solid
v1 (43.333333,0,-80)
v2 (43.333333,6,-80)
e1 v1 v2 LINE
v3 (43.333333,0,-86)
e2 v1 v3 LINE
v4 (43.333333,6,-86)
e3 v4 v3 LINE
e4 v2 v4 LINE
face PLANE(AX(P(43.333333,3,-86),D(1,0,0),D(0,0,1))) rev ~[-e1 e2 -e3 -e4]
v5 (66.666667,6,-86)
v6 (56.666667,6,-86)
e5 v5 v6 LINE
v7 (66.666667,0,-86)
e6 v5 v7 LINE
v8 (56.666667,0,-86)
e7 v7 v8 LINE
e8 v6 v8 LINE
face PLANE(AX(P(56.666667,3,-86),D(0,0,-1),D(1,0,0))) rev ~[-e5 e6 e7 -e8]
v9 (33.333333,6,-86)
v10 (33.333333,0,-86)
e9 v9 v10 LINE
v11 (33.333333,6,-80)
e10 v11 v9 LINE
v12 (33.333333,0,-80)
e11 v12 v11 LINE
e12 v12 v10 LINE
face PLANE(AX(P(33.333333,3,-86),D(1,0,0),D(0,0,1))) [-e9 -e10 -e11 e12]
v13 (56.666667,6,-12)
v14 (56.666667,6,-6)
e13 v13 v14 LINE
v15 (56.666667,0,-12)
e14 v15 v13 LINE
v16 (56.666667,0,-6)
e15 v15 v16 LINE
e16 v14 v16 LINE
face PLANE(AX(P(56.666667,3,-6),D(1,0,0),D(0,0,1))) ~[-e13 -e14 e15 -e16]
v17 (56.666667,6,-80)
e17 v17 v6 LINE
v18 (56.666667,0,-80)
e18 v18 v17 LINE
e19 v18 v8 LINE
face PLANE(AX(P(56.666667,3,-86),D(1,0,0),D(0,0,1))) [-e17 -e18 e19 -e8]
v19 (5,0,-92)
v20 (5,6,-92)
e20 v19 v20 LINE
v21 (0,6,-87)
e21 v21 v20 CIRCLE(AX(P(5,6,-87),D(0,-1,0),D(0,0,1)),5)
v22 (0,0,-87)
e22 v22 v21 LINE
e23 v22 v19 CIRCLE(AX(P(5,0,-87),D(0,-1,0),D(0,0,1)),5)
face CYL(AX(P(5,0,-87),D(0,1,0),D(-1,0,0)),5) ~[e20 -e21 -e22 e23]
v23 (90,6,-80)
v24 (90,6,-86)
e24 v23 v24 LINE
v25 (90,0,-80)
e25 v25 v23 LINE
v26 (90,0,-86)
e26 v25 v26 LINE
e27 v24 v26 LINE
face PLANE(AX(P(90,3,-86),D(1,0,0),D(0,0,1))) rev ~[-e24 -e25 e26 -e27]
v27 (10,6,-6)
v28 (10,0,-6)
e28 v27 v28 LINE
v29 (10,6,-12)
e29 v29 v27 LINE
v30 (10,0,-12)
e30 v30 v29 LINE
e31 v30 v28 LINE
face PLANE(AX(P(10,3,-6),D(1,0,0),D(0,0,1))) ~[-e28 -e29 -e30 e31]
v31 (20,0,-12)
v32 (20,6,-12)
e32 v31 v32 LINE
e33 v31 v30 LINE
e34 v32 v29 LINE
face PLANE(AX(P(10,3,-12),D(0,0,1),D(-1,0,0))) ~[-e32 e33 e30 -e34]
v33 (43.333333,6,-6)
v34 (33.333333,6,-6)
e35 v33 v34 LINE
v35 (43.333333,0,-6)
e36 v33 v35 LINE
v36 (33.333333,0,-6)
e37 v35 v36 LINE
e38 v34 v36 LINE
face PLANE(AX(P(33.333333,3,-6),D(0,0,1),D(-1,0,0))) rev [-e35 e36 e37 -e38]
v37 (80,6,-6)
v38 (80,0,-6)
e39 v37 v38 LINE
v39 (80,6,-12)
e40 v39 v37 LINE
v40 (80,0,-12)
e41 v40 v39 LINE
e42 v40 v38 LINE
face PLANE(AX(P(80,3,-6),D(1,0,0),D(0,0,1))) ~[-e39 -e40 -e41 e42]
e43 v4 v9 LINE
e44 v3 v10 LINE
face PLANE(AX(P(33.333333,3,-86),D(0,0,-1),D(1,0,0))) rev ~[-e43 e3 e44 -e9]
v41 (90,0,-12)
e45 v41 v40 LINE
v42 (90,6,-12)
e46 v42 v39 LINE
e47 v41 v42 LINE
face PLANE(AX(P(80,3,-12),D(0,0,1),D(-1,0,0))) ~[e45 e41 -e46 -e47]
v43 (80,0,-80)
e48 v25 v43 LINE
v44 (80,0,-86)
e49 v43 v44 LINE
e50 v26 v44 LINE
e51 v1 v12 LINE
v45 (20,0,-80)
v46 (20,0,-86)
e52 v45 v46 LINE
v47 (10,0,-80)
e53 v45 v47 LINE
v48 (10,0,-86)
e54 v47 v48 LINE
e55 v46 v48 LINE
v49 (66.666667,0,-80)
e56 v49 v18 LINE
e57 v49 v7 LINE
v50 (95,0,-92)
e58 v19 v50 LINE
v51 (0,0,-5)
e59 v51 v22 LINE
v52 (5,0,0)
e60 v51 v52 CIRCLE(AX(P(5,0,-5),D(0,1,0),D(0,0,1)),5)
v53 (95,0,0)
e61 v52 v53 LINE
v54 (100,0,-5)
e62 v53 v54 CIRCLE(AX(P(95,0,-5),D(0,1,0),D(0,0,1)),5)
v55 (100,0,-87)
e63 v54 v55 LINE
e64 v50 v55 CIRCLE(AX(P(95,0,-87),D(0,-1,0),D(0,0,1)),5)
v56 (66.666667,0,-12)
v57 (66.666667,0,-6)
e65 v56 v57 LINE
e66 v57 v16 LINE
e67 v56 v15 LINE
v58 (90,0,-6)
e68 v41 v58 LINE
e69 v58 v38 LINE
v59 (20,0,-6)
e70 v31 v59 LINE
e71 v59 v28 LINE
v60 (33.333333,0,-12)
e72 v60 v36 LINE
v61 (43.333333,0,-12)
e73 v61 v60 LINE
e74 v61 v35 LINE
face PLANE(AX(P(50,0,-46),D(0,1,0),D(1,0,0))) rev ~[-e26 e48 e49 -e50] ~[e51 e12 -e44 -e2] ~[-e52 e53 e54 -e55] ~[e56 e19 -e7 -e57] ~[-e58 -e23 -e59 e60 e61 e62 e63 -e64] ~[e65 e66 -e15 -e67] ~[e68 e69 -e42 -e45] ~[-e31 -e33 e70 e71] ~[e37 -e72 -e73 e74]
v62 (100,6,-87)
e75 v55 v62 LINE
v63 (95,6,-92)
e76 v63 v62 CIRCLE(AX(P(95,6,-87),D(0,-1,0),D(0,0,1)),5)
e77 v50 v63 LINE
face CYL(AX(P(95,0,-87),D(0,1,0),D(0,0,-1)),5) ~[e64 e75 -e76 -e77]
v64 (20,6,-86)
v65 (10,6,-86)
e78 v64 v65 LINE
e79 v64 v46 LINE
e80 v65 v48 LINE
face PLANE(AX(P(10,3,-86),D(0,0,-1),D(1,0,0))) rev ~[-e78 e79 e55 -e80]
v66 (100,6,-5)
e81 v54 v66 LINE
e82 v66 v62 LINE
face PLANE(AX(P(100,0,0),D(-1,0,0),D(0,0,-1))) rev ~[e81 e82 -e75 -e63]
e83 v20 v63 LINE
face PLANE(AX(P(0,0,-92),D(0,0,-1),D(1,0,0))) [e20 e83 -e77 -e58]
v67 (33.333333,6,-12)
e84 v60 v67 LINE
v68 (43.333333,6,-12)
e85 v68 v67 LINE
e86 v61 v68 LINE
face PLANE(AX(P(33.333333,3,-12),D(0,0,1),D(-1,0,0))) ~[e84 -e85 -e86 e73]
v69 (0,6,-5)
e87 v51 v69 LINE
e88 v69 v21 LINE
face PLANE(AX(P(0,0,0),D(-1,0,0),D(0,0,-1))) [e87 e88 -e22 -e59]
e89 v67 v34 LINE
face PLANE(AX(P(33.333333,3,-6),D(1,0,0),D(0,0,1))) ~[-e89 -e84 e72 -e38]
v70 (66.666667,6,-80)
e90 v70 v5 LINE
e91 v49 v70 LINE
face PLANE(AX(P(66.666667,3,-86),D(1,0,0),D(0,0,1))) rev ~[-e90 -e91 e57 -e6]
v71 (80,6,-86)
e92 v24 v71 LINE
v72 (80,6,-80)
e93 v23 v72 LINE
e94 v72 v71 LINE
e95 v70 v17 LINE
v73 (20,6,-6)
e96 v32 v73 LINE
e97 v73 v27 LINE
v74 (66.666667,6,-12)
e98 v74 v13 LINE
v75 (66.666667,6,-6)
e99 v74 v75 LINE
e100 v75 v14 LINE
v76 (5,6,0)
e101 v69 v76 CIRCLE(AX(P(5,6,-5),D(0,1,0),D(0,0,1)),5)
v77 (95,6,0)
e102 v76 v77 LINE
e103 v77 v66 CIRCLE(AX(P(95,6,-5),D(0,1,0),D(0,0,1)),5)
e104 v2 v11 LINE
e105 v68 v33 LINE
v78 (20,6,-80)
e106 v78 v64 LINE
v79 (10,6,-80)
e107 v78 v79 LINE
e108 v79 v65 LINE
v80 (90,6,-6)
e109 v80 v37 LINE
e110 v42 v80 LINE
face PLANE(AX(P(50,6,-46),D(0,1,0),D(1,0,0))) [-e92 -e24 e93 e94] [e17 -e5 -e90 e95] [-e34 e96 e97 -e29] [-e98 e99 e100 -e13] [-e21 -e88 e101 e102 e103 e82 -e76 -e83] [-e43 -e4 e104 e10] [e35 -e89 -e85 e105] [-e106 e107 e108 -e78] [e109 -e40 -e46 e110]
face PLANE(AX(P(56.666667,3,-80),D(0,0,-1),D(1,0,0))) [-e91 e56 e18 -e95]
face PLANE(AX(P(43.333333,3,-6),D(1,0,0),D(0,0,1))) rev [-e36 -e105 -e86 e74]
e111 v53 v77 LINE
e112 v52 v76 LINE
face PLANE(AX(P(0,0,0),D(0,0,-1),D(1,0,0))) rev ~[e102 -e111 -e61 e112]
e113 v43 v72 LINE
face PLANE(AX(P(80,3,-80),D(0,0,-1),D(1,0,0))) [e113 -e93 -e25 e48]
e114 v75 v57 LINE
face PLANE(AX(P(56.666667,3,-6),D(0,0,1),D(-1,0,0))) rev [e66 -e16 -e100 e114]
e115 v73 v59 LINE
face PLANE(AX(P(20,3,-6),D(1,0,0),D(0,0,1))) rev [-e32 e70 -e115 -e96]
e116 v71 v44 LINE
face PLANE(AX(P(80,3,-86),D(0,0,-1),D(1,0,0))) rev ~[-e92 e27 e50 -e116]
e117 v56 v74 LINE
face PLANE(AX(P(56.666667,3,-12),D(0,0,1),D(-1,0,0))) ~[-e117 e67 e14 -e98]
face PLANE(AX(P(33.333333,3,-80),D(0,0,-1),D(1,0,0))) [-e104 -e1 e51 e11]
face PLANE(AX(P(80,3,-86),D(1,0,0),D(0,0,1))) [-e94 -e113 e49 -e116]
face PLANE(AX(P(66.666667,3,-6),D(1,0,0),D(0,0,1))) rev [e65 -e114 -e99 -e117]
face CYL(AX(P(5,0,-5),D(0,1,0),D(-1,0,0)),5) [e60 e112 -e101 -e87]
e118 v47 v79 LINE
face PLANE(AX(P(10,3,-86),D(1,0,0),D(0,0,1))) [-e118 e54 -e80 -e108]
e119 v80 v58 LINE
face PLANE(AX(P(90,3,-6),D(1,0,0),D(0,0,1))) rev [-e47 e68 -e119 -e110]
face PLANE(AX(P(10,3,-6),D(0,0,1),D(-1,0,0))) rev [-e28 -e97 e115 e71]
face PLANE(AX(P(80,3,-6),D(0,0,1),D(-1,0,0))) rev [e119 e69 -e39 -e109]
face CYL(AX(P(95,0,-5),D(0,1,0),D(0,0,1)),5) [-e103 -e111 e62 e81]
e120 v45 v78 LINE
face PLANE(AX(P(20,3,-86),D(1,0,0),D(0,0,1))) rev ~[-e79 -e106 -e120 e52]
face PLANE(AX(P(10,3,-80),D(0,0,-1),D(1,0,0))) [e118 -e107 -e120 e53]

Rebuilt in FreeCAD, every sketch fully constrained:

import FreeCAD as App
import Part
import Sketcher
from FreeCAD import Vector


def edges_at(feature, points):
    """Names of the edges that pass closest to the given points."""
    edges = feature.Shape.Edges
    near = lambda p: min(range(len(edges)), key=lambda i: edges[i].distToShape(Part.Vertex(*p))[0])
    return sorted({f"Edge{near(p) + 1}" for p in points})


def add_polygon(sketch, points):
    """Adds a closed chain of lines whose ends are joined by coincident constraints."""
    first, n = sketch.GeometryCount, len(points)
    for a, b in zip(points, points[1:] + points[:1]):
        sketch.addGeometry(Part.LineSegment(App.Vector(*a, 0), App.Vector(*b, 0)), False)
    for i in range(n):
        sketch.addConstraint(Sketcher.Constraint("Coincident", first + i, 2, first + (i + 1) % n, 1))

doc = App.newDocument("Part")
params = doc.addObject("Spreadsheet::Sheet", "Params")
for row, (alias, value) in enumerate([
    ("sketch1_width", "100 mm"),
    ("sketch1_height", "92 mm"),
    ("pad1_length", "6 mm"),
    ("sketch2_width", "10 mm"),
    ("sketch2_height", "6 mm"),
    ("pocket1_length", "8 mm"),
    ("sketch3_width", "10 mm"),
    ("sketch3_height", "6 mm"),
    ("pocket2_length", "8 mm"),
    ("sketch4_width", "10 mm"),
    ("sketch4_height", "6 mm"),
    ("pocket3_length", "8 mm"),
    ("sketch5_width", "10 mm"),
    ("sketch5_height", "6 mm"),
    ("pocket4_length", "8 mm"),
    ("fillet_radius", "5 mm"),
], start=1):
    params.set(f"A{row}", alias)
    params.set(f"B{row}", "=" + value)
    params.setAlias(f"B{row}", alias)

body = doc.addObject("PartDesign::Body", "Body")

sketch1 = body.newObject("Sketcher::SketchObject", "Sketch")
sketch1.AttachmentSupport = (doc.getObject("XZ_Plane"), [""])
sketch1.MapMode = "FlatFace"
add_polygon(sketch1, [(0, -92), (0, 0), (100, 0), (100, -92)])
sketch1.addConstraint(Sketcher.Constraint("Vertical", 0))
sketch1.addConstraint(Sketcher.Constraint("Horizontal", 1))
sketch1.addConstraint(Sketcher.Constraint("Vertical", 2))
sketch1.addConstraint(Sketcher.Constraint("Horizontal", 3))
sketch1.addConstraint(Sketcher.Constraint("Coincident", 0, 2, -1, 1))
sketch1.addConstraint(Sketcher.Constraint("DistanceX", 1, 1, 1, 2, 100.0))
sketch1.addConstraint(Sketcher.Constraint("DistanceY", 0, 1, 0, 2, 92.0))
sketch1.setExpression("Constraints[9]", "Params.sketch1_width")
sketch1.setExpression("Constraints[10]", "Params.sketch1_height")
pad1 = body.newObject("PartDesign::Pad", "Pad")
pad1.Profile = sketch1
pad1.setExpression("Length", "Params.pad1_length")
pad1.Reversed = True

sketch2 = body.newObject("Sketcher::SketchObject", "Sketch001")
sketch2.AttachmentSupport = (doc.getObject("XZ_Plane"), [""])
sketch2.MapMode = "FlatFace"
sketch2.AttachmentOffset = App.Placement(Vector(0, 0, -3), App.Rotation())
add_polygon(sketch2, [(80, -80), (80, -86), (90, -86), (90, -80)])
sketch2.addConstraint(Sketcher.Constraint("Vertical", 0))
sketch2.addConstraint(Sketcher.Constraint("Horizontal", 1))
sketch2.addConstraint(Sketcher.Constraint("Vertical", 2))
sketch2.addConstraint(Sketcher.Constraint("Horizontal", 3))
sketch2.addConstraint(Sketcher.Constraint("DistanceX", 1, 1, 1, 2, 10.0))
sketch2.addConstraint(Sketcher.Constraint("DistanceY", 0, 2, 0, 1, 6.0))
sketch2.addConstraint(Sketcher.Constraint("DistanceX", -1, 1, 0, 2, 80.0))
sketch2.addConstraint(Sketcher.Constraint("DistanceY", 0, 2, -1, 1, 86.0))
sketch2.setExpression("Constraints[8]", "Params.sketch2_width")
sketch2.setExpression("Constraints[9]", "Params.sketch2_height")
pocket1 = body.newObject("PartDesign::Pocket", "Pocket")
pocket1.Profile = sketch2
pocket1.setExpression("Length", "Params.pocket1_length")
pocket1.Midplane = True

sketch3 = body.newObject("Sketcher::SketchObject", "Sketch002")
sketch3.AttachmentSupport = (doc.getObject("XZ_Plane"), [""])
sketch3.MapMode = "FlatFace"
sketch3.AttachmentOffset = App.Placement(Vector(0, 0, -3), App.Rotation())
add_polygon(sketch3, [(57, -80), (57, -86), (67, -86), (67, -80)])
sketch3.addConstraint(Sketcher.Constraint("Vertical", 0))
sketch3.addConstraint(Sketcher.Constraint("Horizontal", 1))
sketch3.addConstraint(Sketcher.Constraint("Vertical", 2))
sketch3.addConstraint(Sketcher.Constraint("Horizontal", 3))
sketch3.addConstraint(Sketcher.Constraint("DistanceX", 1, 1, 1, 2, 10.0))
sketch3.addConstraint(Sketcher.Constraint("DistanceY", 0, 2, 0, 1, 6.0))
sketch3.addConstraint(Sketcher.Constraint("DistanceY", 0, 2, -1, 1, 86.0))
sketch3.addConstraint(Sketcher.Constraint("DistanceX", -1, 1, 0, 2, 56.666667))
sketch3.setExpression("Constraints[8]", "Params.sketch3_width")
sketch3.setExpression("Constraints[9]", "Params.sketch3_height")
pocket2 = body.newObject("PartDesign::Pocket", "Pocket001")
pocket2.Profile = sketch3
pocket2.setExpression("Length", "Params.pocket2_length")
pocket2.Midplane = True

sketch4 = body.newObject("Sketcher::SketchObject", "Sketch003")
sketch4.AttachmentSupport = (doc.getObject("XZ_Plane"), [""])
sketch4.MapMode = "FlatFace"
sketch4.AttachmentOffset = App.Placement(Vector(0, 0, -3), App.Rotation())
add_polygon(sketch4, [(33, -80), (33, -86), (43, -86), (43, -80)])
sketch4.addConstraint(Sketcher.Constraint("Vertical", 0))
sketch4.addConstraint(Sketcher.Constraint("Horizontal", 1))
sketch4.addConstraint(Sketcher.Constraint("Vertical", 2))
sketch4.addConstraint(Sketcher.Constraint("Horizontal", 3))
sketch4.addConstraint(Sketcher.Constraint("DistanceX", 1, 1, 1, 2, 10.0))
sketch4.addConstraint(Sketcher.Constraint("DistanceY", 0, 2, 0, 1, 6.0))
sketch4.addConstraint(Sketcher.Constraint("DistanceY", 0, 2, -1, 1, 86.0))
sketch4.addConstraint(Sketcher.Constraint("DistanceX", -1, 1, 0, 2, 33.333333))
sketch4.setExpression("Constraints[8]", "Params.sketch4_width")
sketch4.setExpression("Constraints[9]", "Params.sketch4_height")
pocket3 = body.newObject("PartDesign::Pocket", "Pocket002")
pocket3.Profile = sketch4
pocket3.setExpression("Length", "Params.pocket3_length")
pocket3.Midplane = True

sketch5 = body.newObject("Sketcher::SketchObject", "Sketch004")
sketch5.AttachmentSupport = (doc.getObject("XZ_Plane"), [""])
sketch5.MapMode = "FlatFace"
sketch5.AttachmentOffset = App.Placement(Vector(0, 0, -3), App.Rotation())
add_polygon(sketch5, [(10, -80), (10, -86), (20, -86), (20, -80)])
sketch5.addConstraint(Sketcher.Constraint("Vertical", 0))
sketch5.addConstraint(Sketcher.Constraint("Horizontal", 1))
sketch5.addConstraint(Sketcher.Constraint("Vertical", 2))
sketch5.addConstraint(Sketcher.Constraint("Horizontal", 3))
sketch5.addConstraint(Sketcher.Constraint("DistanceX", 1, 1, 1, 2, 10.0))
sketch5.addConstraint(Sketcher.Constraint("DistanceY", 0, 2, 0, 1, 6.0))
sketch5.addConstraint(Sketcher.Constraint("DistanceX", -1, 1, 0, 2, 10.0))
sketch5.addConstraint(Sketcher.Constraint("DistanceY", 0, 2, -1, 1, 86.0))
sketch5.setExpression("Constraints[8]", "Params.sketch5_width")
sketch5.setExpression("Constraints[9]", "Params.sketch5_height")
pocket4 = body.newObject("PartDesign::Pocket", "Pocket003")
pocket4.Profile = sketch5
pocket4.setExpression("Length", "Params.pocket4_length")
pocket4.Midplane = True
doc.recompute()

datumplane = body.newObject("PartDesign::Plane", "DatumPlane")
datumplane.AttachmentSupport = (doc.getObject("XY_Plane"), [""])
datumplane.MapMode = "FlatFace"
datumplane.AttachmentOffset = App.Placement(Vector(0, 0, -46), App.Rotation())
mirrored = body.newObject("PartDesign::Mirrored", "Mirrored")
mirrored.Originals = [pocket1, pocket2, pocket3, pocket4]
mirrored.MirrorPlane = (datumplane, [""])
body.Tip = mirrored
doc.recompute()

fillet = body.newObject("PartDesign::Fillet", "Fillet")
fillet.Base = (mirrored, edges_at(mirrored, [
    (0, 3, -92),
    (100, 3, -92),
    (100, 3, 0),
    (0, 3, 0),
]))
fillet.setExpression("Radius", "Params.fillet_radius")

doc.recompute()
